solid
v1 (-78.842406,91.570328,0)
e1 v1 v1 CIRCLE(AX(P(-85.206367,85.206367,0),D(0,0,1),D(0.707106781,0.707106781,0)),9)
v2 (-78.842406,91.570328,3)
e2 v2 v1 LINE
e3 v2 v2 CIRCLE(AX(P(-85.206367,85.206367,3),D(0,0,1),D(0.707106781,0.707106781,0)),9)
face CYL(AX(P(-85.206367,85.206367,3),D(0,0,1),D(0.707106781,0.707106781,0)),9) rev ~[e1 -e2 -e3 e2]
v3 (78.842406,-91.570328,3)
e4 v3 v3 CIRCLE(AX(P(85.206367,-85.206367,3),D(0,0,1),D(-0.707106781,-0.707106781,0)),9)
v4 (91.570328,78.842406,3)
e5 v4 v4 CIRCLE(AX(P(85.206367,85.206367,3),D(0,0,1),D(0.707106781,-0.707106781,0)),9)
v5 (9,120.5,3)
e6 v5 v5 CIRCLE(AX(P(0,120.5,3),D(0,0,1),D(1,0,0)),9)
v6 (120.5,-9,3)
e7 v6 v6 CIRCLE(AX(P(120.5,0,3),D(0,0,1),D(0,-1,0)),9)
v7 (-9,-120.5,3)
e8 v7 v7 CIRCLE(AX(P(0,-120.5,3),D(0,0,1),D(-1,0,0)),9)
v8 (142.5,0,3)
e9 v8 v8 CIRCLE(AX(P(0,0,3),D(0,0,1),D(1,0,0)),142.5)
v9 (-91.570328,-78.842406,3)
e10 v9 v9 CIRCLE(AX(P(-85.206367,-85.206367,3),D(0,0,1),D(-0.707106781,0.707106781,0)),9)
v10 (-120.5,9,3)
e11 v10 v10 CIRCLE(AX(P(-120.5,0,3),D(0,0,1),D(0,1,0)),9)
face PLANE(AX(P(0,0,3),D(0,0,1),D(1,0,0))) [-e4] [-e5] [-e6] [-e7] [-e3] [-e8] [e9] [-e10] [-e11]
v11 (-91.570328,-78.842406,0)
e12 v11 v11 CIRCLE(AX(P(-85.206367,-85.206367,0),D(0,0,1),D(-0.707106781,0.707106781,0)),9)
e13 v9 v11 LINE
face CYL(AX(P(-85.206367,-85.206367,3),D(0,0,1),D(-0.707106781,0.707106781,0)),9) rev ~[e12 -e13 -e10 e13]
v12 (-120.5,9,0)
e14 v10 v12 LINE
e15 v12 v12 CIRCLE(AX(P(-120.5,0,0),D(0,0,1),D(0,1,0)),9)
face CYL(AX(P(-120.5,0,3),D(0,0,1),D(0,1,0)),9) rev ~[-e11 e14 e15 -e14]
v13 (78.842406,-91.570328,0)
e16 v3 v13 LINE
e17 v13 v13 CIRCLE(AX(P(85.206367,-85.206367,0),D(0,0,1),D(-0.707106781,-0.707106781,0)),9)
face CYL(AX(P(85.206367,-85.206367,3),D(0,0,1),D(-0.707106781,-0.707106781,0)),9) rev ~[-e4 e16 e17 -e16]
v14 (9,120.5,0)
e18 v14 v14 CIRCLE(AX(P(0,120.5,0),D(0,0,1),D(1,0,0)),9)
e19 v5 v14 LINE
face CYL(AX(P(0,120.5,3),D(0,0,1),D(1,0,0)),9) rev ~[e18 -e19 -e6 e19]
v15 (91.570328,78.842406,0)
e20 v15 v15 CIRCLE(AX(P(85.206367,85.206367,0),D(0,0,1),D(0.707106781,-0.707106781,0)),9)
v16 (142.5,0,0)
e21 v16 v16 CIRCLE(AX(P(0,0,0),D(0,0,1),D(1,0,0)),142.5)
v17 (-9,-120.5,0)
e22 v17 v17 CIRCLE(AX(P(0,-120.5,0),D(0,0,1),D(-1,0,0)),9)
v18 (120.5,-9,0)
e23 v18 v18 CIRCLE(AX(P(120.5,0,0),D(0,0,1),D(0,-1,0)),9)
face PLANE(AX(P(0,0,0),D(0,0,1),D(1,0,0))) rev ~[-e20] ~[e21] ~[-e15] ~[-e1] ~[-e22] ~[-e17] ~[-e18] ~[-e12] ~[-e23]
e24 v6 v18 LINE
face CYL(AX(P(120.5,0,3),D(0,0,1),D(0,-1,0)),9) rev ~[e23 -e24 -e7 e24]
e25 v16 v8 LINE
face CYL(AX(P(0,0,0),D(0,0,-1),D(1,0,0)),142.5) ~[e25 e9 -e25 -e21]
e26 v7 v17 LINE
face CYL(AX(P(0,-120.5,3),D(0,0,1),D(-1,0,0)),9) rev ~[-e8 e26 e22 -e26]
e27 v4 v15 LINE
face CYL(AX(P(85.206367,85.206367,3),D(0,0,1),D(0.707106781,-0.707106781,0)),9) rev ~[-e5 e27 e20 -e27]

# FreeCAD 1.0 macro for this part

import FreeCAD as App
import Part
import Sketcher
from FreeCAD import Vector

doc = App.newDocument("Part")
params = doc.addObject("Spreadsheet::Sheet", "Params")
for row, (alias, value) in enumerate([
    ("sketch1_diameter", "285 mm"),
    ("pad1_length", "3 mm"),
    ("sketch2_diameter", "18 mm"),
    ("pocket1_length", "3 mm"),
], start=1):
    params.set(f"A{row}", alias)
    params.set(f"B{row}", "=" + value)
    params.setAlias(f"B{row}", alias)

body = doc.addObject("PartDesign::Body", "Body")

# Sketch on XY plane
sketch1 = body.newObject("Sketcher::SketchObject", "Sketch")
sketch1.AttachmentSupport = (doc.getObject("XY_Plane"), [""])
sketch1.MapMode = "FlatFace"
sketch1.addGeometry(Part.Circle(Vector(0, 0, 0), Vector(0, 0, 1), 142), False)
sketch1.addConstraint([
    Sketcher.Constraint("Coincident", 0, 3, -1, 1),
    Sketcher.Constraint("Diameter", 0, 285.0),
])
sketch1.setExpression("Constraints[1]", "Params.sketch1_diameter")
pad1 = body.newObject("PartDesign::Pad", "Pad")
pad1.Profile = sketch1
pad1.setExpression("Length", "Params.pad1_length")

# Sketch on XY plane
sketch2 = body.newObject("Sketcher::SketchObject", "Sketch001")
sketch2.AttachmentSupport = (doc.getObject("XY_Plane"), [""])
sketch2.MapMode = "FlatFace"
sketch2.AttachmentOffset = App.Placement(Vector(0, 0, 3), App.Rotation())
sketch2.addGeometry(Part.Circle(Vector(0, 120, 0), Vector(0, 0, 1), 9), False)
sketch2.addConstraint([
    Sketcher.Constraint("PointOnObject", 0, 3, -2),
    Sketcher.Constraint("Diameter", 0, 18.0),
    Sketcher.Constraint("DistanceY", -1, 1, 0, 3, 120.5),
])
sketch2.setExpression("Constraints[1]", "Params.sketch2_diameter")
pocket1 = body.newObject("PartDesign::Pocket", "Pocket")
pocket1.Profile = sketch2
pocket1.setExpression("Length", "Params.pocket1_length")
doc.recompute()

polarpattern = body.newObject("PartDesign::PolarPattern", "PolarPattern")
polarpattern.Originals = [pocket1]
polarpattern.Axis = (doc.getObject("Z_Axis"), [""])
polarpattern.Angle = 360
polarpattern.Occurrences = 8
body.Tip = polarpattern

doc.recompute()
